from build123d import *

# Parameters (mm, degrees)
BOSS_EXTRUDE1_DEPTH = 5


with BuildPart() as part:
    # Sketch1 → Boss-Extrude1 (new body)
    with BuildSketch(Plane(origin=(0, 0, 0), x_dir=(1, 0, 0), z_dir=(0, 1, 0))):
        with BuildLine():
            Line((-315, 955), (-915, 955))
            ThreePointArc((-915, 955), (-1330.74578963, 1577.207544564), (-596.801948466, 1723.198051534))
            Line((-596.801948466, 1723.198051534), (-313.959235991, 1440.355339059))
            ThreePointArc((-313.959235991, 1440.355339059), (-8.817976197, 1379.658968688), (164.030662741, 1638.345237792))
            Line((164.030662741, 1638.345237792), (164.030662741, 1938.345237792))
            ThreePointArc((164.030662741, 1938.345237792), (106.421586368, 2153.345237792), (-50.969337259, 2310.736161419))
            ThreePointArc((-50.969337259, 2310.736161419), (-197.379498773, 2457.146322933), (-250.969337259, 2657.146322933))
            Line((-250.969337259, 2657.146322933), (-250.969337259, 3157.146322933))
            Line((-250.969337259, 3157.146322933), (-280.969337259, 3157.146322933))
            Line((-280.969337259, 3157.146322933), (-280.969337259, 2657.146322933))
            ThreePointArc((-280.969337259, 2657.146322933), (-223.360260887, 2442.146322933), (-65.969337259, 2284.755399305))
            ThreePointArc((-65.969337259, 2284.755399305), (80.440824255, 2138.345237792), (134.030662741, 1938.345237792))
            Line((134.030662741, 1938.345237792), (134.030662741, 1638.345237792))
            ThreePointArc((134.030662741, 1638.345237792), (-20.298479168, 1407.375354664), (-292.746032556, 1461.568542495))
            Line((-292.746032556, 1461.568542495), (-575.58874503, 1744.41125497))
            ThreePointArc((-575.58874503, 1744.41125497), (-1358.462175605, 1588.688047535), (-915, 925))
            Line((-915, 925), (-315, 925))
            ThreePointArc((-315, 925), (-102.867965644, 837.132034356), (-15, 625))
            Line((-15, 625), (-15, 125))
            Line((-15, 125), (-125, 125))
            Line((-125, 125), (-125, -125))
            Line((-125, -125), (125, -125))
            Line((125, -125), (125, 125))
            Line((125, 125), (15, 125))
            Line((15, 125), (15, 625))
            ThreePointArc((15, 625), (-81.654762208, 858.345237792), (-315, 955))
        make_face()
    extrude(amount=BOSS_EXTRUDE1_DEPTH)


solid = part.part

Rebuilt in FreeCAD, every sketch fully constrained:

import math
import FreeCAD as App
import Part
import Sketcher
Q = App.Units.Quantity

doc = App.newDocument("Part")
body = doc.addObject("PartDesign::Body", "Body")

# Sketch on XZ plane
sketch1 = doc.addObject("Sketcher::SketchObject", "Sketch")
body.addObject(sketch1)
sketch1.AttachmentSupport = (doc.XZ_Plane, [""])
sketch1.MapMode = "FlatFace"
sketch1.addGeometry(Part.LineSegment(App.Vector(-315, -955, 0), App.Vector(-915, -955, 0)), False)
sketch1.addGeometry(Part.ArcOfCircle(Part.Circle(App.Vector(-915, -1405, 0), App.Vector(0, 0, 1), 450), math.radians(90), math.radians(315)), False)
sketch1.addGeometry(Part.LineSegment(App.Vector(-597, -1723, 0), App.Vector(-314, -1440, 0)), False)
sketch1.addGeometry(Part.ArcOfCircle(Part.Circle(App.Vector(-116, -1638, 0), App.Vector(0, 0, 1), 280), math.radians(0), math.radians(135)), False)
sketch1.addGeometry(Part.LineSegment(App.Vector(164, -1638, 0), App.Vector(164, -1938, 0)), False)
sketch1.addGeometry(Part.ArcOfCircle(Part.Circle(App.Vector(-266, -1938, 0), App.Vector(0, 0, 1), 430), math.radians(-60), math.radians(0)), False)
sketch1.addGeometry(Part.ArcOfCircle(Part.Circle(App.Vector(149, -2657, 0), App.Vector(0, 0, 1), 400), math.radians(120), math.radians(180)), False)
sketch1.addGeometry(Part.LineSegment(App.Vector(-251, -2657, 0), App.Vector(-251, -3157, 0)), False)
sketch1.addGeometry(Part.LineSegment(App.Vector(-251, -3157, 0), App.Vector(-281, -3157, 0)), False)
sketch1.addGeometry(Part.LineSegment(App.Vector(-281, -3157, 0), App.Vector(-281, -2657, 0)), False)
sketch1.addGeometry(Part.ArcOfCircle(Part.Circle(App.Vector(149, -2657, 0), App.Vector(0, 0, 1), 430), math.radians(120), math.radians(180)), False)
sketch1.addGeometry(Part.ArcOfCircle(Part.Circle(App.Vector(-266, -1938, 0), App.Vector(0, 0, 1), 400), math.radians(-60), math.radians(0)), False)
sketch1.addGeometry(Part.LineSegment(App.Vector(134, -1938, 0), App.Vector(134, -1638, 0)), False)
sketch1.addGeometry(Part.ArcOfCircle(Part.Circle(App.Vector(-116, -1638, 0), App.Vector(0, 0, 1), 250), math.radians(0), math.radians(135)), False)
sketch1.addGeometry(Part.LineSegment(App.Vector(-293, -1462, 0), App.Vector(-576, -1744, 0)), False)
sketch1.addGeometry(Part.ArcOfCircle(Part.Circle(App.Vector(-915, -1405, 0), App.Vector(0, 0, 1), 480), math.radians(90), math.radians(315)), False)
sketch1.addGeometry(Part.LineSegment(App.Vector(-915, -925, 0), App.Vector(-315, -925, 0)), False)
sketch1.addGeometry(Part.ArcOfCircle(Part.Circle(App.Vector(-315, -625, 0), App.Vector(0, 0, 1), 300), math.radians(-90), math.radians(0)), False)
sketch1.addGeometry(Part.LineSegment(App.Vector(-15, -625, 0), App.Vector(-15, -125, 0)), False)
sketch1.addGeometry(Part.LineSegment(App.Vector(-15, -125, 0), App.Vector(-125, -125, 0)), False)
sketch1.addGeometry(Part.LineSegment(App.Vector(-125, -125, 0), App.Vector(-125, 125, 0)), False)
sketch1.addGeometry(Part.LineSegment(App.Vector(-125, 125, 0), App.Vector(125, 125, 0)), False)
sketch1.addGeometry(Part.LineSegment(App.Vector(125, 125, 0), App.Vector(125, -125, 0)), False)
sketch1.addGeometry(Part.LineSegment(App.Vector(125, -125, 0), App.Vector(15, -125, 0)), False)
sketch1.addGeometry(Part.LineSegment(App.Vector(15, -125, 0), App.Vector(15, -625, 0)), False)
sketch1.addGeometry(Part.ArcOfCircle(Part.Circle(App.Vector(-315, -625, 0), App.Vector(0, 0, 1), 330), math.radians(-90), math.radians(0)), False)
sketch1.addConstraint(Sketcher.Constraint("Tangent", 0, 2, 1, 1))
sketch1.addConstraint(Sketcher.Constraint("Tangent", 1, 2, 2, 1))
sketch1.addConstraint(Sketcher.Constraint("Tangent", 2, 2, 3, 2))
sketch1.addConstraint(Sketcher.Constraint("Tangent", 3, 1, 4, 1))
sketch1.addConstraint(Sketcher.Constraint("Tangent", 4, 2, 5, 2))
sketch1.addConstraint(Sketcher.Constraint("Tangent", 5, 1, 6, 1))
sketch1.addConstraint(Sketcher.Constraint("Tangent", 6, 2, 7, 1))
sketch1.addConstraint(Sketcher.Constraint("Coincident", 7, 2, 8, 1))
sketch1.addConstraint(Sketcher.Constraint("Coincident", 8, 2, 9, 1))
sketch1.addConstraint(Sketcher.Constraint("Tangent", 9, 2, 10, 2))
sketch1.addConstraint(Sketcher.Constraint("Tangent", 10, 1, 11, 1))
sketch1.addConstraint(Sketcher.Constraint("Tangent", 11, 2, 12, 1))
sketch1.addConstraint(Sketcher.Constraint("Tangent", 12, 2, 13, 1))
sketch1.addConstraint(Sketcher.Constraint("Tangent", 13, 2, 14, 1))
sketch1.addConstraint(Sketcher.Constraint("Tangent", 14, 2, 15, 2))
sketch1.addConstraint(Sketcher.Constraint("Tangent", 15, 1, 16, 1))
sketch1.addConstraint(Sketcher.Constraint("Tangent", 16, 2, 17, 1))
sketch1.addConstraint(Sketcher.Constraint("Tangent", 17, 2, 18, 1))
sketch1.addConstraint(Sketcher.Constraint("Coincident", 18, 2, 19, 1))
sketch1.addConstraint(Sketcher.Constraint("Coincident", 19, 2, 20, 1))
sketch1.addConstraint(Sketcher.Constraint("Coincident", 20, 2, 21, 1))
sketch1.addConstraint(Sketcher.Constraint("Coincident", 21, 2, 22, 1))
sketch1.addConstraint(Sketcher.Constraint("Coincident", 22, 2, 23, 1))
sketch1.addConstraint(Sketcher.Constraint("Coincident", 23, 2, 24, 1))
sketch1.addConstraint(Sketcher.Constraint("Tangent", 24, 2, 25, 2))
sketch1.addConstraint(Sketcher.Constraint("Tangent", 25, 1, 0, 1))
sketch1.addConstraint(Sketcher.Constraint("Horizontal", 0))
sketch1.addConstraint(Sketcher.Constraint("Vertical", 4))
sketch1.addConstraint(Sketcher.Constraint("Vertical", 7))
sketch1.addConstraint(Sketcher.Constraint("Horizontal", 8))
sketch1.addConstraint(Sketcher.Constraint("Vertical", 9))
sketch1.addConstraint(Sketcher.Constraint("Vertical", 12))
sketch1.addConstraint(Sketcher.Constraint("Horizontal", 16))
sketch1.addConstraint(Sketcher.Constraint("Vertical", 18))
sketch1.addConstraint(Sketcher.Constraint("Horizontal", 19))
sketch1.addConstraint(Sketcher.Constraint("Vertical", 20))
sketch1.addConstraint(Sketcher.Constraint("Horizontal", 21))
sketch1.addConstraint(Sketcher.Constraint("Vertical", 22))
sketch1.addConstraint(Sketcher.Constraint("Horizontal", 23))
sketch1.addConstraint(Sketcher.Constraint("Vertical", 24))
sketch1.addConstraint(Sketcher.Constraint("Coincident", 10, 3, 6, 3))
sketch1.addConstraint(Sketcher.Constraint("Coincident", 11, 3, 5, 3))
sketch1.addConstraint(Sketcher.Constraint("Coincident", 13, 3, 3, 3))
sketch1.addConstraint(Sketcher.Constraint("Coincident", 15, 3, 1, 3))
sketch1.addConstraint(Sketcher.Constraint("Coincident", 25, 3, 17, 3))
sketch1.addConstraint(Sketcher.Constraint("Equal", 5, 10))
sketch1.addConstraint(Sketcher.Constraint("Symmetric", 19, 2, 21, 2, -1, 1))
sketch1.addConstraint(Sketcher.Constraint("Symmetric", 18, 2, 23, 2, -2))
sketch1.addConstraint(Sketcher.Constraint("Parallel", 2, 14))
sketch1.addConstraint(Sketcher.Constraint("Equal", 9, 18))
sketch1.addConstraint(Sketcher.Constraint("Equal", 21, 20))
sketch1.addConstraint(Sketcher.Constraint("Radius", 1, Q("450 mm")))
sketch1.addConstraint(Sketcher.Constraint("Radius", 3, Q("280 mm")))
sketch1.addConstraint(Sketcher.Constraint("Radius", 5, Q("430 mm")))
sketch1.addConstraint(Sketcher.Constraint("Radius", 6, Q("400 mm")))
sketch1.addConstraint(Sketcher.Constraint("Radius", 17, Q("300 mm")))
sketch1.addConstraint(Sketcher.Constraint("DistanceX", 0, 2, 0, 1, Q("600 mm")))
sketch1.addConstraint(Sketcher.Constraint("DistanceX", 19, 2, 19, 1, Q("110 mm")))
sketch1.addConstraint(Sketcher.Constraint("DistanceY", 4, 2, 4, 1, Q("300 mm")))
sketch1.addConstraint(Sketcher.Constraint("DistanceY", 7, 2, 7, 1, Q("500 mm")))
sketch1.addConstraint(Sketcher.Constraint("Angle", 2, Q("45 deg")))
sketch1.addConstraint(Sketcher.Constraint("Distance", 2, Q("400 mm")))
sketch1.addConstraint(Sketcher.Constraint("DistanceX", 5, 3, 6, 3, Q("415 mm")))
pad1 = doc.addObject("PartDesign::Pad", "Pad")
body.addObject(pad1)
pad1.Profile = sketch1
pad1.Length = 5
pad1.Reversed = True

doc.recompute()
